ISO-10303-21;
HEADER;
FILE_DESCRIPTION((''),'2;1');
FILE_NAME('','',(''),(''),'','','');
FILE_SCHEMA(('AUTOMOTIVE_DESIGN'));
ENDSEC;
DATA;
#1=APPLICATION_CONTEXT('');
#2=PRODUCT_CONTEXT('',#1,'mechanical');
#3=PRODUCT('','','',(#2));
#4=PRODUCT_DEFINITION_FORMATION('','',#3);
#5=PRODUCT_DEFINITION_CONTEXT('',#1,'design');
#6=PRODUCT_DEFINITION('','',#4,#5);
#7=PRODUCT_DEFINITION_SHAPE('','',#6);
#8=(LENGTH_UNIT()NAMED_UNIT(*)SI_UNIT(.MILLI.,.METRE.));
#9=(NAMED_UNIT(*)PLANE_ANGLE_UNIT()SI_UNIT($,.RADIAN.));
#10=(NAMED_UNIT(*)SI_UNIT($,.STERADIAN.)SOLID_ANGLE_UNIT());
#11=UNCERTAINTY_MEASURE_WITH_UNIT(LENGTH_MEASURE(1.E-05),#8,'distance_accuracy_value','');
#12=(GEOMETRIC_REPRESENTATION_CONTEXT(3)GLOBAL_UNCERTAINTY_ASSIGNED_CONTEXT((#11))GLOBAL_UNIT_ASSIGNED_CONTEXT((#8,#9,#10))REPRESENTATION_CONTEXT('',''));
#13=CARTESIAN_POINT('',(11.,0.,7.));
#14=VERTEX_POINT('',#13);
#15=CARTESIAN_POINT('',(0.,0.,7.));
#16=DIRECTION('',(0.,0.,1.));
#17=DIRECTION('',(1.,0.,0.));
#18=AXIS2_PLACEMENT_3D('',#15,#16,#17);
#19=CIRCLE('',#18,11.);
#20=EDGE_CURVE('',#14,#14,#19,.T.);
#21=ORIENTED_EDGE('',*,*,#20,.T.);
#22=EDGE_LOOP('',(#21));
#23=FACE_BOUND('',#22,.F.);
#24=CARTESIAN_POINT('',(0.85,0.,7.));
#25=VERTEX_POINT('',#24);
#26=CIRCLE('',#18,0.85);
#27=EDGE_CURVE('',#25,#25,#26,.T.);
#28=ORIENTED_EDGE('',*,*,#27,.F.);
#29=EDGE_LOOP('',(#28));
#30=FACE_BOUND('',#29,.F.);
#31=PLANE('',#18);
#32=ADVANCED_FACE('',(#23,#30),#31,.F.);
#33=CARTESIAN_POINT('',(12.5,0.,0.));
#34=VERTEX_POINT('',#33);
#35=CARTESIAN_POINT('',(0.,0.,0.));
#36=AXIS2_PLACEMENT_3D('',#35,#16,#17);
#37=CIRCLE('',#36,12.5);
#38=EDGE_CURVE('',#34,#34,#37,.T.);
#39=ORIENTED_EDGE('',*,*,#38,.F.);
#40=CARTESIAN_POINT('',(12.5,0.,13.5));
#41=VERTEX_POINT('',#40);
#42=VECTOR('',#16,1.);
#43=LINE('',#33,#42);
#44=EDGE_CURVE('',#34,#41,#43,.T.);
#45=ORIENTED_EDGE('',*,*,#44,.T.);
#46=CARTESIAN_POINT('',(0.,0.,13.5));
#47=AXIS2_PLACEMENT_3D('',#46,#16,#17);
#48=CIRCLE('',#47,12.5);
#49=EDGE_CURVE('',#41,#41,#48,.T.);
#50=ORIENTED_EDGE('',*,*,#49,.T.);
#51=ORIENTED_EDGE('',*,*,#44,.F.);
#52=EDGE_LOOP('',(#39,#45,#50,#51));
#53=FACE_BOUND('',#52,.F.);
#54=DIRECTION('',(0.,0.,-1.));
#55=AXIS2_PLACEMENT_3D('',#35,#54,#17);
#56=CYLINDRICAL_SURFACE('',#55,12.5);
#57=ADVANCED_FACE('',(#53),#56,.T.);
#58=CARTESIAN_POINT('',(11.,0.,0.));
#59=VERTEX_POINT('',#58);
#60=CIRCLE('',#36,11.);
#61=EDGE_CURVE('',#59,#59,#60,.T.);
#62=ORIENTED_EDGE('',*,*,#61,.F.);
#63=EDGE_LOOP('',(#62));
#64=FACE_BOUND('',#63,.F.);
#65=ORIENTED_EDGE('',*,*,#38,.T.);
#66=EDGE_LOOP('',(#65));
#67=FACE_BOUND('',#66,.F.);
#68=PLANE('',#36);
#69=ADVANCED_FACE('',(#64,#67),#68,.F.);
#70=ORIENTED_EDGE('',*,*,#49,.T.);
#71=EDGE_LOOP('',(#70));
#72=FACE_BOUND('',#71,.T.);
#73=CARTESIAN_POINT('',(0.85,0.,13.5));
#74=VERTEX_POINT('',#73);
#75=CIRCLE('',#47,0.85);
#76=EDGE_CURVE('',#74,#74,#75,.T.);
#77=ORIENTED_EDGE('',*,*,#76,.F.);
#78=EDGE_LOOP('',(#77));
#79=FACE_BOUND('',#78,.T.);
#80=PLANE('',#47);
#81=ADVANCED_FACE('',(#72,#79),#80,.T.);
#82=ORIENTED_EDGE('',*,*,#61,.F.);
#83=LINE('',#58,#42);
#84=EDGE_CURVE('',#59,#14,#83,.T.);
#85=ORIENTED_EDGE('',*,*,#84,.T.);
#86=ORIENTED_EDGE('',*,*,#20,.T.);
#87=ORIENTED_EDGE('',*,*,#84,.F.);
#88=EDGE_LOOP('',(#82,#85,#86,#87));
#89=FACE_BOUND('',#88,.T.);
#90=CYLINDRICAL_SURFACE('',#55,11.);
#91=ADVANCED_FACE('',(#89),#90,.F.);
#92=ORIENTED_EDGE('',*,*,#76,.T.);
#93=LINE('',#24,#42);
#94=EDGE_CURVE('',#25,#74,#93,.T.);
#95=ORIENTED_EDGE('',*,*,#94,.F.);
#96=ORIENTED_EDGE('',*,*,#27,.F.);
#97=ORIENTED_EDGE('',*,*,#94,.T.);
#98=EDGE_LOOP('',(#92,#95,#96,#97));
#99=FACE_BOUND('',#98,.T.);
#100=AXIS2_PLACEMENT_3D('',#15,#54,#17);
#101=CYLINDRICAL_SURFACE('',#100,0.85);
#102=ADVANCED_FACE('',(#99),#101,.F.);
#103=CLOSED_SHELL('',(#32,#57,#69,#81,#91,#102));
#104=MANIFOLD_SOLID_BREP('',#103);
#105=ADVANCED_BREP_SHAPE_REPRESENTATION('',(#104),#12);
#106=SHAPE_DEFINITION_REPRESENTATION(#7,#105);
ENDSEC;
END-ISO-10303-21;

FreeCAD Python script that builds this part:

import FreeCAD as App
import Part
import Sketcher
from FreeCAD import Vector
Q = App.Units.Quantity

doc = App.newDocument("Part")
body = doc.addObject("PartDesign::Body", "Body")

sketch1 = doc.addObject("Sketcher::SketchObject", "Sketch")
body.addObject(sketch1)
sketch1.AttachmentSupport = (doc.XY_Plane, [""])
sketch1.MapMode = "FlatFace"
sketch1.addGeometry(Part.Circle(Vector(0, 0, 0), Vector(0, 0, 1), 12), False)
sketch1.addGeometry(Part.Circle(Vector(0, 0, 0), Vector(0, 0, 1), 11), False)
sketch1.addConstraint(Sketcher.Constraint("Coincident", 0, 3, -1, 1))
sketch1.addConstraint(Sketcher.Constraint("Coincident", 1, 3, -1, 1))
sketch1.addConstraint(Sketcher.Constraint("Diameter", 0, Q("25 mm")))
sketch1.addConstraint(Sketcher.Constraint("Diameter", 1, Q("22 mm")))
pad1 = doc.addObject("PartDesign::Pad", "Pad")
body.addObject(pad1)
pad1.Profile = sketch1
pad1.Length = 13.5

sketch2 = doc.addObject("Sketcher::SketchObject", "Sketch001")
body.addObject(sketch2)
sketch2.AttachmentSupport = (doc.XY_Plane, [""])
sketch2.MapMode = "FlatFace"
sketch2.AttachmentOffset = App.Placement(Vector(0, 0, 7), App.Rotation())
sketch2.addGeometry(Part.Circle(Vector(0, 0, 0), Vector(0, 0, 1), 11), False)
sketch2.addGeometry(Part.Circle(Vector(0, 0, 0), Vector(0, 0, 1), 0.8), False)
sketch2.addConstraint(Sketcher.Constraint("Coincident", 0, 3, -1, 1))
sketch2.addConstraint(Sketcher.Constraint("Coincident", 1, 3, -1, 1))
sketch2.addConstraint(Sketcher.Constraint("Diameter", 0, Q("22 mm")))
sketch2.addConstraint(Sketcher.Constraint("Diameter", 1, Q("1.7 mm")))
pad2 = doc.addObject("PartDesign::Pad", "Pad001")
body.addObject(pad2)
pad2.Profile = sketch2
pad2.Length = 6.5

doc.recompute()
